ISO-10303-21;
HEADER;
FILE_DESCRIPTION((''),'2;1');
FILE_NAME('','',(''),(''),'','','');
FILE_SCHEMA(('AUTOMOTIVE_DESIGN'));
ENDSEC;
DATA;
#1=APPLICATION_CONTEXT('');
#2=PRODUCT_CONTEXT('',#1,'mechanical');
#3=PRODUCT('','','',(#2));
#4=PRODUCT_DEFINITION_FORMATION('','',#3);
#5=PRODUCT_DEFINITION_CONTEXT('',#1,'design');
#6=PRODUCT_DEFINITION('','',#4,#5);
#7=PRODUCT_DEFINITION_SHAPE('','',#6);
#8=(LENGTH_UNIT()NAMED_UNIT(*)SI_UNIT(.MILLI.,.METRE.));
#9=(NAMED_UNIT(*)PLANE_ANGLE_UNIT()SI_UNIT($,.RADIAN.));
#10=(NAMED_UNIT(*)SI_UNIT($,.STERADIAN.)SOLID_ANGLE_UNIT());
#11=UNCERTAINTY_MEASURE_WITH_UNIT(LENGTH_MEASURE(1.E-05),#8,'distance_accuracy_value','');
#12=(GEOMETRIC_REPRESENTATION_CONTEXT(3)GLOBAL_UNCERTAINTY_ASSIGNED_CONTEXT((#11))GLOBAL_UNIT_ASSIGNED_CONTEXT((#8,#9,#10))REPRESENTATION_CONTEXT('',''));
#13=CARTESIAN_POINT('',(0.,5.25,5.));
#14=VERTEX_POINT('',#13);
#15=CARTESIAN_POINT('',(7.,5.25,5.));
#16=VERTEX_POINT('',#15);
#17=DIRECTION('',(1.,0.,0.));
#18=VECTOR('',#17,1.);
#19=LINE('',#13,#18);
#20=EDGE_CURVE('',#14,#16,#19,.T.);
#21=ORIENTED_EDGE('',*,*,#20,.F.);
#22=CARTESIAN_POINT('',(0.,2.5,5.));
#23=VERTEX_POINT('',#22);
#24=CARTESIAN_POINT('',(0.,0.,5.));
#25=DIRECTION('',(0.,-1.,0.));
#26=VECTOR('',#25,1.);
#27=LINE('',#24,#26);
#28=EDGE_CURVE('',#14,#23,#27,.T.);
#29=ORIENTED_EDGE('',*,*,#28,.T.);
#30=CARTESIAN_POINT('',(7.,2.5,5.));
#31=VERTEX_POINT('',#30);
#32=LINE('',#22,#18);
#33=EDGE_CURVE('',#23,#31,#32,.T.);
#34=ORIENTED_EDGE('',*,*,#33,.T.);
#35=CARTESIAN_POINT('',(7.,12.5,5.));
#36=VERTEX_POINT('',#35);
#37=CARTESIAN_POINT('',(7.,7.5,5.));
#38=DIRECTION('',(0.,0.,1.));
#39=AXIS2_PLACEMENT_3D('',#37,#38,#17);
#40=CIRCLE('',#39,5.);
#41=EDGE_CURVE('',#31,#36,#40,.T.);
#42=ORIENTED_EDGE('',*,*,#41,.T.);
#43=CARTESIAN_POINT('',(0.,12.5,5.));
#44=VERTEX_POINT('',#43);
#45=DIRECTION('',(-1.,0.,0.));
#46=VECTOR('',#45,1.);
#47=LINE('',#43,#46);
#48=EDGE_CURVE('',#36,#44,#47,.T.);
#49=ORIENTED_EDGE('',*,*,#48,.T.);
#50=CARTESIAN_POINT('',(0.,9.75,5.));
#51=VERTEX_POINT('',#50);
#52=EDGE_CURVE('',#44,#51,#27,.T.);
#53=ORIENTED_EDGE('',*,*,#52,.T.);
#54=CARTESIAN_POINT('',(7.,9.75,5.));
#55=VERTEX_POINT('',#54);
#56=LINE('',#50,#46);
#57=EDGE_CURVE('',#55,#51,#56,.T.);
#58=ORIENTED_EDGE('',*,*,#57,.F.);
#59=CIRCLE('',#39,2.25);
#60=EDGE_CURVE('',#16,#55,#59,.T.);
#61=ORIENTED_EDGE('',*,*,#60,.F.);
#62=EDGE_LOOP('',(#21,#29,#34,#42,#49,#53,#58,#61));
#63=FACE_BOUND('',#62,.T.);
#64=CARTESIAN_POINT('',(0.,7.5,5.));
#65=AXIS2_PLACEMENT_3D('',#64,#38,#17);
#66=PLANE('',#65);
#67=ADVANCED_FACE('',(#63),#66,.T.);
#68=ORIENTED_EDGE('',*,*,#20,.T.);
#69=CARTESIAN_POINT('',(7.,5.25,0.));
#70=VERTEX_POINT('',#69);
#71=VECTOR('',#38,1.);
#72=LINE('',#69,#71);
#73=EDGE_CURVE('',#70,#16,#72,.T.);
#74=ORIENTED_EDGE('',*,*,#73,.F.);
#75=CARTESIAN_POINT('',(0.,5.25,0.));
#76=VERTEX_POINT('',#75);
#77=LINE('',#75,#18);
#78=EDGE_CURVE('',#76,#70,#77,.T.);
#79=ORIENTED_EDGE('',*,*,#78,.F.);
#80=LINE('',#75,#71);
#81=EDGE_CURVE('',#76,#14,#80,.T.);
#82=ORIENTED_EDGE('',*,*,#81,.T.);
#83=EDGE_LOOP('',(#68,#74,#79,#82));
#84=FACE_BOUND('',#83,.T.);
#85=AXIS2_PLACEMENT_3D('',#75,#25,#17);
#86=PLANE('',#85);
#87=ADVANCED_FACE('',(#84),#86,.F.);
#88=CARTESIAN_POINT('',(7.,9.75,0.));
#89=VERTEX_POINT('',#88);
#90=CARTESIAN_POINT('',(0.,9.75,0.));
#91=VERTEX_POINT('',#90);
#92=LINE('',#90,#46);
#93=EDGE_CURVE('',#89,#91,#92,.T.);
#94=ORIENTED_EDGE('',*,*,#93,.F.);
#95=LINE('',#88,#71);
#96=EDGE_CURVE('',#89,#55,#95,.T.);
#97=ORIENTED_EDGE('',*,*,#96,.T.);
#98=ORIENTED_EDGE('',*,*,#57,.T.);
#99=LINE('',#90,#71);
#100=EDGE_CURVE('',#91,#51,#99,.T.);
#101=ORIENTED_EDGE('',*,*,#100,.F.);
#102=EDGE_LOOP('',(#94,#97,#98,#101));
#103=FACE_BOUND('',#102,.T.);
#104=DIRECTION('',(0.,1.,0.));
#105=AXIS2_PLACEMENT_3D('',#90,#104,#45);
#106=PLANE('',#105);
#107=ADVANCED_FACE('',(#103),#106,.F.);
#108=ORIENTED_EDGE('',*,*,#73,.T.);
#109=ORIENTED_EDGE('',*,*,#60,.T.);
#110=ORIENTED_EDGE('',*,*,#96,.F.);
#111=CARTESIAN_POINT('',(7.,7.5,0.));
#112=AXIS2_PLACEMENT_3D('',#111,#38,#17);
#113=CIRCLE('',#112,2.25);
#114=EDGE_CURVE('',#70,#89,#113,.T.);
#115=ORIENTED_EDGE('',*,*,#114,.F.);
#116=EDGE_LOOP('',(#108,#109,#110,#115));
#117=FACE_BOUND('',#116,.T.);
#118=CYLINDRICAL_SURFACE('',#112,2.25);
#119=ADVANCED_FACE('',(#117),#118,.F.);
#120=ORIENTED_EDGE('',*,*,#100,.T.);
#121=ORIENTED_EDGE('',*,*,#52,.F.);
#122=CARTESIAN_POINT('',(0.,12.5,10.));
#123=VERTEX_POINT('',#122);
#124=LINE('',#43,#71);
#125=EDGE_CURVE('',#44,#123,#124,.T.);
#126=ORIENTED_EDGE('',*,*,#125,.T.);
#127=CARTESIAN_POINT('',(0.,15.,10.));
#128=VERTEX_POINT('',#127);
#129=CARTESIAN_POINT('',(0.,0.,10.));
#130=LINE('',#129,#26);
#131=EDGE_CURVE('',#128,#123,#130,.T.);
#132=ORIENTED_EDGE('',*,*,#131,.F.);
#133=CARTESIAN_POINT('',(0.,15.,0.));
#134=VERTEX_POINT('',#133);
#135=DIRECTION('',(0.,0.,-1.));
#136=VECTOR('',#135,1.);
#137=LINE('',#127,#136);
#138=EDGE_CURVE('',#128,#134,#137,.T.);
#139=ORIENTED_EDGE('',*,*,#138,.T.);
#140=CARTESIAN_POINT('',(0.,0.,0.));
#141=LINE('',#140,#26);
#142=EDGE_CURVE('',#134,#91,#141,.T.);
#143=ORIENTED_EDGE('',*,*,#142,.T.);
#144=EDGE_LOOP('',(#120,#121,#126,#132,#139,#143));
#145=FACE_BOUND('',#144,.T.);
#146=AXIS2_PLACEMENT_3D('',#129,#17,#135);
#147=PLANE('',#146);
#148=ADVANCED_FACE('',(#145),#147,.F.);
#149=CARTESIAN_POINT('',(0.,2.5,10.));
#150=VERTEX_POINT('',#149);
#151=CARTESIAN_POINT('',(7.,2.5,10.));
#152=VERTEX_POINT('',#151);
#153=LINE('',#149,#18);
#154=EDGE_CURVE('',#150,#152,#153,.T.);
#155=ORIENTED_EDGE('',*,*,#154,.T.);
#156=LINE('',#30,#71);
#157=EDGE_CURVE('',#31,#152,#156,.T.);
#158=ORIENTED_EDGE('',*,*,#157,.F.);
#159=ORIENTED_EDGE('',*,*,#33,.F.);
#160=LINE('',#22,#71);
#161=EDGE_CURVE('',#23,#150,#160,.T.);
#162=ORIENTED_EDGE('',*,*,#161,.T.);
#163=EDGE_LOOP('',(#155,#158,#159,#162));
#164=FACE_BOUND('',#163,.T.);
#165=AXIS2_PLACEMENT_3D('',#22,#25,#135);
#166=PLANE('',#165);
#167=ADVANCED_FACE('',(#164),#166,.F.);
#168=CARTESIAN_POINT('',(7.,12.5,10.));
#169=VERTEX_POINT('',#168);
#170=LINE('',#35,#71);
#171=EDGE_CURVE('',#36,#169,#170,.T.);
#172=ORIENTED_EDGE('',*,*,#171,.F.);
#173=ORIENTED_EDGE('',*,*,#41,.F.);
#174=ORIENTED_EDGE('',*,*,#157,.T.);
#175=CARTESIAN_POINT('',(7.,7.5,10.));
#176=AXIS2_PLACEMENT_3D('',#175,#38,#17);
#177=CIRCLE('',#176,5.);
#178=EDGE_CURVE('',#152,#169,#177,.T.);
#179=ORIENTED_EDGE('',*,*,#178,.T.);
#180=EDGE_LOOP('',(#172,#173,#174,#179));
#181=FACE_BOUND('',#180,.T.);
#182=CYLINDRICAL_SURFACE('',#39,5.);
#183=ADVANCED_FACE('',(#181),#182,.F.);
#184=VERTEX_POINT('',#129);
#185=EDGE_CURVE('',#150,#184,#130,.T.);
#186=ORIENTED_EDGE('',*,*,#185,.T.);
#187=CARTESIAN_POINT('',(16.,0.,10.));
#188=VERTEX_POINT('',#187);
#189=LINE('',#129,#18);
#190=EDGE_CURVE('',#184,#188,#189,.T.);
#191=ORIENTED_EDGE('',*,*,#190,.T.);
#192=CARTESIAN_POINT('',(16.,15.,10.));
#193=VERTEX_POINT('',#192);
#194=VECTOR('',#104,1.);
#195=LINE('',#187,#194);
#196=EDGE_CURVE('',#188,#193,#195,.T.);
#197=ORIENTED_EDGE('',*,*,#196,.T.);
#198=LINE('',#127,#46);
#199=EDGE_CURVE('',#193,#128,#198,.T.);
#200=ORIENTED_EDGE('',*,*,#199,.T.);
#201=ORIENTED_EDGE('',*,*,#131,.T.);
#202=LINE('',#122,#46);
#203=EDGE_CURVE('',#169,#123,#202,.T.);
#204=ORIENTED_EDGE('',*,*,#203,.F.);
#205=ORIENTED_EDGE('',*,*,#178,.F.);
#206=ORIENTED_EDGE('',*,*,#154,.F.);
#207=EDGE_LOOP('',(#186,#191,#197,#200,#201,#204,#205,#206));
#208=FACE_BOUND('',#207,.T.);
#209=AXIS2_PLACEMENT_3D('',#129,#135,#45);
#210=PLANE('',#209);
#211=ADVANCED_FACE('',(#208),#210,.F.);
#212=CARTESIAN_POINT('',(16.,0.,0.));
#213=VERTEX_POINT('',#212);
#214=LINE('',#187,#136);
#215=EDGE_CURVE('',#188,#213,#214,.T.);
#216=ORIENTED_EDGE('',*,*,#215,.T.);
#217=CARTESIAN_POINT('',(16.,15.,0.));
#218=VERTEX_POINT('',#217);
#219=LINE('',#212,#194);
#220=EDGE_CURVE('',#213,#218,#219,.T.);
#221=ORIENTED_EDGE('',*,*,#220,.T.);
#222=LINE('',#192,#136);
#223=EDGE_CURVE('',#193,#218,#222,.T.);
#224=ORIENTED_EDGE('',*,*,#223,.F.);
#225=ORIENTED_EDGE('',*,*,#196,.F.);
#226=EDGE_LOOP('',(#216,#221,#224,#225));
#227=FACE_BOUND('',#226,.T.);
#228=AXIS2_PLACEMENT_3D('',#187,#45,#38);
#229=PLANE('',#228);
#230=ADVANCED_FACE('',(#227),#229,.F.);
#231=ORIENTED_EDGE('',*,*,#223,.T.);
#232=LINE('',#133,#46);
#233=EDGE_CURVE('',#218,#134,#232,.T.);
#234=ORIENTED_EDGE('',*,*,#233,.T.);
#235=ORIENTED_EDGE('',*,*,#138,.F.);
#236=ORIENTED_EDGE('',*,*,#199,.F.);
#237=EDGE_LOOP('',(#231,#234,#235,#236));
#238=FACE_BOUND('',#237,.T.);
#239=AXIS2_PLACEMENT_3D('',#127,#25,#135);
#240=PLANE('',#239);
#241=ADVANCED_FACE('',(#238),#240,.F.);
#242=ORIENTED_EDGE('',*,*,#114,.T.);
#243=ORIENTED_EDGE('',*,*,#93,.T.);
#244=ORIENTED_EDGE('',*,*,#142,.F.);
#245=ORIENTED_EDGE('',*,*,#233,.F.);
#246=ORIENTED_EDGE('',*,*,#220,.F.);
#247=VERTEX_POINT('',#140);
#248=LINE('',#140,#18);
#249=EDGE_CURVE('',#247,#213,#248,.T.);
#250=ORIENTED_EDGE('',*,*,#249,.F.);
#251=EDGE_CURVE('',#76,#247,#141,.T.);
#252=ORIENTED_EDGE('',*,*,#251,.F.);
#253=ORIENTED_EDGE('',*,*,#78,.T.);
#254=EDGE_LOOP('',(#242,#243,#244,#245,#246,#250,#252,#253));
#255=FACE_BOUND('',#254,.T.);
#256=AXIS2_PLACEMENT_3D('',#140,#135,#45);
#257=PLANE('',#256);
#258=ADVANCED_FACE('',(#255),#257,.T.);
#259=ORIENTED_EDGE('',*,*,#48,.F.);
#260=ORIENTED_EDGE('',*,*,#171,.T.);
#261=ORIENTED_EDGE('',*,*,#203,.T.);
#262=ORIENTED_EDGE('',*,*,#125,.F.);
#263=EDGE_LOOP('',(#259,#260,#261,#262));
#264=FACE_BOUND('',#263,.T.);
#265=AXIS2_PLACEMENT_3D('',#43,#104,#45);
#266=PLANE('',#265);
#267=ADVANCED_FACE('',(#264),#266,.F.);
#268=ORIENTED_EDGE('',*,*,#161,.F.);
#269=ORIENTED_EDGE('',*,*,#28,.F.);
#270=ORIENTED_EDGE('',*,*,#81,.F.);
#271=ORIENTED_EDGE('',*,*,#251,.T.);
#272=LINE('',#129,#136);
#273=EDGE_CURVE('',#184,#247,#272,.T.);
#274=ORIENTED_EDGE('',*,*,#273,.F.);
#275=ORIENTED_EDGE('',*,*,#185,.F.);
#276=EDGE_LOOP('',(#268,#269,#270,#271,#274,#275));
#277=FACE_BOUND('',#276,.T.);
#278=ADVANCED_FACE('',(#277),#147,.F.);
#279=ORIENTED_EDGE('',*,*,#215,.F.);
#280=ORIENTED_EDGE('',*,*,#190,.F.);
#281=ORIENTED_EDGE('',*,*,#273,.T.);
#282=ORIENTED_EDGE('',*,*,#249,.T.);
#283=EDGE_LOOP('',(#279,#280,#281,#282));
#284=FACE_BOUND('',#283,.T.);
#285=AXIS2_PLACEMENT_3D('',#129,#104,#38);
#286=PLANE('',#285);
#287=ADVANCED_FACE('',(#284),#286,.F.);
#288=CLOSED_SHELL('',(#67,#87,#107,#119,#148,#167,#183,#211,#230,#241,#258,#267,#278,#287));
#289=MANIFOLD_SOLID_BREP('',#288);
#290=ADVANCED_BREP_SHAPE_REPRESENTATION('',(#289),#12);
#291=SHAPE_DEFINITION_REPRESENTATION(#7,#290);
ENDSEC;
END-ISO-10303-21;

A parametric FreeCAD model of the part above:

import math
import FreeCAD as App
import Part
import Sketcher
Q = App.Units.Quantity


def add_polygon(sketch, points):
    """Adds a closed chain of lines whose ends are joined by coincident constraints."""
    first, n = sketch.GeometryCount, len(points)
    for a, b in zip(points, points[1:] + points[:1]):
        sketch.addGeometry(Part.LineSegment(App.Vector(*a, 0), App.Vector(*b, 0)), False)
    for i in range(n):
        sketch.addConstraint(Sketcher.Constraint("Coincident", first + i, 2, first + (i + 1) % n, 1))

doc = App.newDocument("Part")
body = doc.addObject("PartDesign::Body", "Body")

# Sketch on XY plane
sketch1 = body.newObject("Sketcher::SketchObject", "Sketch")
sketch1.AttachmentSupport = (doc.getObject("XY_Plane"), [""])
sketch1.MapMode = "FlatFace"
add_polygon(sketch1, [(0, 15), (0, 0), (16, 0), (16, 15)])  # lines 0-3
sketch1.addConstraint([
    Sketcher.Constraint("Vertical", 0),
    Sketcher.Constraint("Horizontal", 1),
    Sketcher.Constraint("Vertical", 2),
    Sketcher.Constraint("Horizontal", 3),
    Sketcher.Constraint("Coincident", 0, 2, -1, 1),
    Sketcher.Constraint("DistanceX", 1, 1, 1, 2, Q("16 mm")),
    Sketcher.Constraint("DistanceY", 0, 2, 0, 1, Q("15 mm")),
])
pad1 = body.newObject("PartDesign::Pad", "Pad")
pad1.Profile = sketch1
pad1.Length = 10

# Sketch on XY plane
sketch2 = body.newObject("Sketcher::SketchObject", "Sketch001")
sketch2.AttachmentSupport = (doc.getObject("XY_Plane"), [""])
sketch2.MapMode = "FlatFace"
sketch2.AttachmentOffset = App.Placement(App.Vector(0, 0, 10), App.Rotation())
sketch2.addGeometry([
    Part.LineSegment(App.Vector(7, 12.5, 0), App.Vector(0, 12.5, 0)),
    Part.ArcOfCircle(Part.Circle(App.Vector(0, 7.5, 0), App.Vector(0, 0, 1), 5), math.radians(90), math.radians(270)),
    Part.LineSegment(App.Vector(0, 2.5, 0), App.Vector(7, 2.5, 0)),
    Part.ArcOfCircle(Part.Circle(App.Vector(7, 7.5, 0), App.Vector(0, 0, 1), 5), math.radians(-90), math.radians(90)),
], False)
sketch2.addConstraint([
    Sketcher.Constraint("Tangent", 0, 2, 1, 1),
    Sketcher.Constraint("Tangent", 1, 2, 2, 1),
    Sketcher.Constraint("Tangent", 2, 2, 3, 1),
    Sketcher.Constraint("Tangent", 3, 2, 0, 1),
    Sketcher.Constraint("Horizontal", 0),
    Sketcher.Constraint("Horizontal", 2),
    Sketcher.Constraint("PointOnObject", 1, 3, -2),
    Sketcher.Constraint("Radius", 1, Q("5 mm")),
    Sketcher.Constraint("DistanceX", 0, 2, 0, 1, Q("7 mm")),
    Sketcher.Constraint("DistanceY", -1, 1, 1, 3, Q("7.5 mm")),
])
pocket1 = body.newObject("PartDesign::Pocket", "Pocket")
pocket1.Profile = sketch2
pocket1.Length = 5

# Sketch on XY plane
sketch3 = body.newObject("Sketcher::SketchObject", "Sketch002")
sketch3.AttachmentSupport = (doc.getObject("XY_Plane"), [""])
sketch3.MapMode = "FlatFace"
sketch3.AttachmentOffset = App.Placement(App.Vector(0, 0, 5), App.Rotation())
sketch3.addGeometry([
    Part.LineSegment(App.Vector(7, 9.75, 0), App.Vector(0, 9.75, 0)),
    Part.ArcOfCircle(Part.Circle(App.Vector(0, 7.5, 0), App.Vector(0, 0, 1), 2.25), math.radians(90), math.radians(270)),
    Part.LineSegment(App.Vector(0, 5.25, 0), App.Vector(7, 5.25, 0)),
    Part.ArcOfCircle(Part.Circle(App.Vector(7, 7.5, 0), App.Vector(0, 0, 1), 2.25), math.radians(-90), math.radians(90)),
], False)
sketch3.addConstraint([
    Sketcher.Constraint("Tangent", 0, 2, 1, 1),
    Sketcher.Constraint("Tangent", 1, 2, 2, 1),
    Sketcher.Constraint("Tangent", 2, 2, 3, 1),
    Sketcher.Constraint("Tangent", 3, 2, 0, 1),
    Sketcher.Constraint("Horizontal", 0),
    Sketcher.Constraint("Horizontal", 2),
    Sketcher.Constraint("PointOnObject", 1, 3, -2),
    Sketcher.Constraint("DistanceX", 0, 2, 0, 1, Q("7 mm")),
    Sketcher.Constraint("Radius", 1, Q("2.25 mm")),
    Sketcher.Constraint("DistanceY", -1, 1, 1, 3, Q("7.5 mm")),
])
pocket2 = body.newObject("PartDesign::Pocket", "Pocket001")
pocket2.Profile = sketch3
pocket2.Type = "ThroughAll"

doc.recompute()
